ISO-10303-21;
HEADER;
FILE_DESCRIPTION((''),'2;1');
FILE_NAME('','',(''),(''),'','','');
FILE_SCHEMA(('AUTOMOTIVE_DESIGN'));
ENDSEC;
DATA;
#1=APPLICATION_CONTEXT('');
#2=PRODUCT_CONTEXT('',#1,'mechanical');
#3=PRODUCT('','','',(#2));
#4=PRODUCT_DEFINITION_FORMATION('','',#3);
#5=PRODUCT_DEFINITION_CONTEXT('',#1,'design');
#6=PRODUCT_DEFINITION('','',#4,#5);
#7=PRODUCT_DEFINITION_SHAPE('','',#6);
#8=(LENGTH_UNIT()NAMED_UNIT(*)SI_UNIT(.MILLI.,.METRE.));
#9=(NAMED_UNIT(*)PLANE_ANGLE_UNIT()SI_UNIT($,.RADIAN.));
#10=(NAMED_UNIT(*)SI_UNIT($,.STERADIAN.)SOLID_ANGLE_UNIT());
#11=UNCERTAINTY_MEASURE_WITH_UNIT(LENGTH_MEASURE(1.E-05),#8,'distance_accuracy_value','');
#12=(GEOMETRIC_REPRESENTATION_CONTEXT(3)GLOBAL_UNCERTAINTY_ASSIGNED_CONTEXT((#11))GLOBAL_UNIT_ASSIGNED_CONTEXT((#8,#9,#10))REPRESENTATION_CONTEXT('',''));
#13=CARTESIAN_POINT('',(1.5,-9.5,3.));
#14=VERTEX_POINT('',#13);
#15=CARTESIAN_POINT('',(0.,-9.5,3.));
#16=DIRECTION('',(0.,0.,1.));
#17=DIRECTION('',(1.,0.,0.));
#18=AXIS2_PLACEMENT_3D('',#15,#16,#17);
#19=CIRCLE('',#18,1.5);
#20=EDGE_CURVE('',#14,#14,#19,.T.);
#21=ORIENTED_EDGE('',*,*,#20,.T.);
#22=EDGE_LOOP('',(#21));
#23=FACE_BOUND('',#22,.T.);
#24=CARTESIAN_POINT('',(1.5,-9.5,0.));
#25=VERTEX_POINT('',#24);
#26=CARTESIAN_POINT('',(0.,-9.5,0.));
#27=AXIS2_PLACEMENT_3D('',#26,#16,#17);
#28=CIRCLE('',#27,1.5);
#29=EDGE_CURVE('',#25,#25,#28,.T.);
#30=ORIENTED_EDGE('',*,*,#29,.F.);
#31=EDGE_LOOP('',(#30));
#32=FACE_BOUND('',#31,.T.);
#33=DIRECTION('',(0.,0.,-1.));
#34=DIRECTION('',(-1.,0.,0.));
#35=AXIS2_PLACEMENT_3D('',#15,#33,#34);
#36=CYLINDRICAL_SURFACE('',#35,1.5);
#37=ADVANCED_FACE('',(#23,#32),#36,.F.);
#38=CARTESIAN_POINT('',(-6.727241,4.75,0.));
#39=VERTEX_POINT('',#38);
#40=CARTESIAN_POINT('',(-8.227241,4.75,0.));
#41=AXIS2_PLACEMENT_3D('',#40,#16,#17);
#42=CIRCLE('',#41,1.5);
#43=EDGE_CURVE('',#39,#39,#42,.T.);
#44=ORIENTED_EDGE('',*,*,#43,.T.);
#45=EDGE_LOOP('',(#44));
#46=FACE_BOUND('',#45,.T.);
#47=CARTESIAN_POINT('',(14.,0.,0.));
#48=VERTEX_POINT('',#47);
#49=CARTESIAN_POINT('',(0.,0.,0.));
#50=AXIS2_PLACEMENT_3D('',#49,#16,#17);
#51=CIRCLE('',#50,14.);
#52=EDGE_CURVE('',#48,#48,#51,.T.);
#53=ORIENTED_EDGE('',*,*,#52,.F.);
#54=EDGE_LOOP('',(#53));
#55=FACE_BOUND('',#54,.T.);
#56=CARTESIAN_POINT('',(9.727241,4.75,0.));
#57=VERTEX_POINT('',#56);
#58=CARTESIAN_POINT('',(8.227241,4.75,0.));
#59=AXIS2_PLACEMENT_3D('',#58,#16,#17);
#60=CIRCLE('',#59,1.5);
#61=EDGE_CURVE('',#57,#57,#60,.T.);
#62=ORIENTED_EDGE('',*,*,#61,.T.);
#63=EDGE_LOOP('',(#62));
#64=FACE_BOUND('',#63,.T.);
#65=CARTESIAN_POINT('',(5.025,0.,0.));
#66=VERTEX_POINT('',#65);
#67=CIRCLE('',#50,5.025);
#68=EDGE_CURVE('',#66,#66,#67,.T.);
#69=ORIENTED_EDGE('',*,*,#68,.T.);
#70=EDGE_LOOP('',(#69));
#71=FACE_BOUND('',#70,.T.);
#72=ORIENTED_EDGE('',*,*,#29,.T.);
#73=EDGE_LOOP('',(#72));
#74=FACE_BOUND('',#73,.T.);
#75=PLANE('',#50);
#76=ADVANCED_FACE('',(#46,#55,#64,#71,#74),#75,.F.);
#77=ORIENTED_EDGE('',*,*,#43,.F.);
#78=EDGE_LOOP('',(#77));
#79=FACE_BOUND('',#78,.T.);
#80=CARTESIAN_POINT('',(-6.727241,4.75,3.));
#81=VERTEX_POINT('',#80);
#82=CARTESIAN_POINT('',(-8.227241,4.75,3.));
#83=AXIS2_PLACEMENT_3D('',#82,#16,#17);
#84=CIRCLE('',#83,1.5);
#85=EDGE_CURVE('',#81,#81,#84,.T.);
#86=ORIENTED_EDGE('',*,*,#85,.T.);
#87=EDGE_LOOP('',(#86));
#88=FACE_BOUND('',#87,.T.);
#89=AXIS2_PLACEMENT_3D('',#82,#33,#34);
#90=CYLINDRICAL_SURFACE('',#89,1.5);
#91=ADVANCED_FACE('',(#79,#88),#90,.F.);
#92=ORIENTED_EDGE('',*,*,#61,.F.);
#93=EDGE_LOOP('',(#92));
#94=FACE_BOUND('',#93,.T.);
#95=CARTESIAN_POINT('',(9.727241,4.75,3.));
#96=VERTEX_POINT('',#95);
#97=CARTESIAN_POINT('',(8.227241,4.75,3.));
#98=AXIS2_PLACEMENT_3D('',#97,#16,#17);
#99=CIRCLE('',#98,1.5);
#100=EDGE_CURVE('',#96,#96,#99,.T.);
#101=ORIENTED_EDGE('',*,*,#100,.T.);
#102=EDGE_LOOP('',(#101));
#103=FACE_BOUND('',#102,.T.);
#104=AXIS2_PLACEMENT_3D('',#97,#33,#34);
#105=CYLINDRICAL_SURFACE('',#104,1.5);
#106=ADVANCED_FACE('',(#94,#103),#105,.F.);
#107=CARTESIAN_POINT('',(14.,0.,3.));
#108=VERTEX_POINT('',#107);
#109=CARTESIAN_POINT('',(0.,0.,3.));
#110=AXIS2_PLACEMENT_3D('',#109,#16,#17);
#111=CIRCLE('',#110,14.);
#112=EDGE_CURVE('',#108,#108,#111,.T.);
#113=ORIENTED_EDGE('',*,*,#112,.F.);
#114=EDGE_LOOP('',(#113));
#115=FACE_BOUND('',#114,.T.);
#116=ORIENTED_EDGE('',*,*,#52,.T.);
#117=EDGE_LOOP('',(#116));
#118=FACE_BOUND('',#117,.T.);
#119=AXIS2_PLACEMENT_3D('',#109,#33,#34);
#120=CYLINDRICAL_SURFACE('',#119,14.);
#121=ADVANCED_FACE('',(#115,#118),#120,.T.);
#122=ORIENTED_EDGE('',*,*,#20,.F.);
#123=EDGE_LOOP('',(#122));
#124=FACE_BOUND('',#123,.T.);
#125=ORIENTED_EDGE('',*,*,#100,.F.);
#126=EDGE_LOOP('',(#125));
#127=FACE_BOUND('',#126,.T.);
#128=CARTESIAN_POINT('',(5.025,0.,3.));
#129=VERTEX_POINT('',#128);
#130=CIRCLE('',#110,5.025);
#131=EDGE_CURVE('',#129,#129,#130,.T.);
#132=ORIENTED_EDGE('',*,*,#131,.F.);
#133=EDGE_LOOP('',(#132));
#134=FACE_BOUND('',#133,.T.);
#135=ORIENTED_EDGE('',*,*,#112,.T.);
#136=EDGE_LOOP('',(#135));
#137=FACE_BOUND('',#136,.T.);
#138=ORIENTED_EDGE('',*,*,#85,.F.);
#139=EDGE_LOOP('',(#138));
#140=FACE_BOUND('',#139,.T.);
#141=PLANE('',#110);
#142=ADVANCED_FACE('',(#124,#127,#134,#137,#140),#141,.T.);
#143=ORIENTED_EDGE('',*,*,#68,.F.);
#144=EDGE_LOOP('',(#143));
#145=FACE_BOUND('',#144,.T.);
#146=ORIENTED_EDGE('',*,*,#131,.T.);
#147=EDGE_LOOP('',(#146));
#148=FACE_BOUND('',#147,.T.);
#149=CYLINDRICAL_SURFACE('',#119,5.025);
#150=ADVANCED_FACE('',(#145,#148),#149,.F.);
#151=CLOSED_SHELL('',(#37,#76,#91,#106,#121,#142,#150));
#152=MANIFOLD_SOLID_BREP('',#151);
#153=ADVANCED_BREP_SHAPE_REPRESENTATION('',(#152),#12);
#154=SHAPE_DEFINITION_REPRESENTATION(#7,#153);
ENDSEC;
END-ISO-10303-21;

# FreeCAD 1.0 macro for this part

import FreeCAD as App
import Part
import Sketcher

V = App.Vector

doc = App.newDocument("Part")
body = doc.addObject("PartDesign::Body", "Body")

# Sketch on XY plane
sketch1 = body.newObject("Sketcher::SketchObject", "Sketch")
sketch1.AttachmentSupport = (doc.getObject("XY_Plane"), [""])
sketch1.MapMode = "FlatFace"
sketch1.addGeometry([
    Part.Circle(V(0, 0, 0), V(0, 0, 1), 14),  # 0
    Part.Circle(V(0, -9.5, 0), V(0, 0, 1), 1.5),  # 1
    Part.Circle(V(0, 0, 0), V(0, 0, 1), 5.025),  # 2
    Part.Circle(V(-8.227241, 4.75, 0), V(0, 0, 1), 1.5),  # 3
    Part.Circle(V(8.227241, 4.75, 0), V(0, 0, 1), 1.5),  # 4
], False)
sketch1.addConstraint([
    Sketcher.Constraint("Coincident", 0, 3, -1, 1),
    Sketcher.Constraint("Coincident", 2, 3, -1, 1),
    Sketcher.Constraint("Equal", 1, 3),
    Sketcher.Constraint("Equal", 3, 4),
    Sketcher.Constraint("Symmetric", 3, 3, 4, 3, -2),
    Sketcher.Constraint("PointOnObject", 1, 3, -2),
    Sketcher.Constraint("Diameter", 0, 28.0),
    Sketcher.Constraint("Diameter", 1, 3.0),
    Sketcher.Constraint("Diameter", 2, 10.05),
    Sketcher.Constraint("DistanceY", 1, 3, -1, 1, 9.5),
    Sketcher.Constraint("DistanceY", -1, 1, 3, 3, 4.75),
    Sketcher.Constraint("DistanceX", 3, 3, -1, 1, 8.227241),
])
pad1 = body.newObject("PartDesign::Pad", "Pad")
pad1.Profile = sketch1
pad1.Length = 3

doc.recompute()
